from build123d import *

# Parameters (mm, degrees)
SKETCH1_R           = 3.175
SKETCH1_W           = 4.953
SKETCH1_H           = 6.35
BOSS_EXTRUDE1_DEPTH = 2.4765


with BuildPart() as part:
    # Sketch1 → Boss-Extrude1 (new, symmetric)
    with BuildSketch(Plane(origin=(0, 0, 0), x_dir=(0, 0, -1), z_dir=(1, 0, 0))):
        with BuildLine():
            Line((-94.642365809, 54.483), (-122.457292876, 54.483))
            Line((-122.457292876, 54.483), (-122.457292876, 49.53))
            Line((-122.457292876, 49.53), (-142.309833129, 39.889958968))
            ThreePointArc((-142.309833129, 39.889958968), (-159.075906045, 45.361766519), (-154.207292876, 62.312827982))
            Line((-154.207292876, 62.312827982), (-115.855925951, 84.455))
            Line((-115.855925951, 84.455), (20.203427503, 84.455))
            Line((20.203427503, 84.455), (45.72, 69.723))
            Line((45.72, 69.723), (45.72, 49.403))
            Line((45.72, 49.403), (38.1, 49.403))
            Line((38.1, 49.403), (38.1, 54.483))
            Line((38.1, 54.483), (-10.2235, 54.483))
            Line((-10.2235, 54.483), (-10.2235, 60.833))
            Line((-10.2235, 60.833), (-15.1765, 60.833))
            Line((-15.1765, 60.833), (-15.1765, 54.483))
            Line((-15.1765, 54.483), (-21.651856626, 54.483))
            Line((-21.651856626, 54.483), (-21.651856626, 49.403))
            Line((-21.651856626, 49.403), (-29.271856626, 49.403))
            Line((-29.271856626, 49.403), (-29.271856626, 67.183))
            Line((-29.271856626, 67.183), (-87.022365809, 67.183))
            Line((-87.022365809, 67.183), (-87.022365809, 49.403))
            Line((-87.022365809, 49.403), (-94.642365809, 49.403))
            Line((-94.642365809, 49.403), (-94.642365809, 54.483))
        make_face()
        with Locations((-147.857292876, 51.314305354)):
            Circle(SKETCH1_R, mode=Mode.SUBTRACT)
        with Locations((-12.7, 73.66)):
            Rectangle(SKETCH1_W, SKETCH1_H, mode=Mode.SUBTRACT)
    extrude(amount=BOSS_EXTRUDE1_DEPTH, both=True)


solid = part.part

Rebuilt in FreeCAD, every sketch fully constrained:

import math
import FreeCAD as App
import Part
import Sketcher
Q = App.Units.Quantity


def add_polygon(sketch, points):
    """Adds a closed chain of lines whose ends are joined by coincident constraints."""
    first, n = sketch.GeometryCount, len(points)
    for a, b in zip(points, points[1:] + points[:1]):
        sketch.addGeometry(Part.LineSegment(App.Vector(*a, 0), App.Vector(*b, 0)), False)
    for i in range(n):
        sketch.addConstraint(Sketcher.Constraint("Coincident", first + i, 2, first + (i + 1) % n, 1))

doc = App.newDocument("Part")
body = doc.addObject("PartDesign::Body", "Body")

sketch1 = body.newObject("Sketcher::SketchObject", "Sketch")
sketch1.AttachmentSupport = (doc.getObject("YZ_Plane"), [""])
sketch1.MapMode = "FlatFace"
sketch1.addGeometry(Part.LineSegment(App.Vector(54.5, 122.5, 0), App.Vector(54.5, 94.6, 0)), False)
sketch1.addGeometry(Part.LineSegment(App.Vector(54.5, 94.6, 0), App.Vector(49.4, 94.6, 0)), False)
sketch1.addGeometry(Part.LineSegment(App.Vector(49.4, 94.6, 0), App.Vector(49.4, 87, 0)), False)
sketch1.addGeometry(Part.LineSegment(App.Vector(49.4, 87, 0), App.Vector(67.2, 87, 0)), False)
sketch1.addGeometry(Part.LineSegment(App.Vector(67.2, 87, 0), App.Vector(67.2, 29.3, 0)), False)
sketch1.addGeometry(Part.LineSegment(App.Vector(67.2, 29.3, 0), App.Vector(49.4, 29.3, 0)), False)
sketch1.addGeometry(Part.LineSegment(App.Vector(49.4, 29.3, 0), App.Vector(49.4, 21.7, 0)), False)
sketch1.addGeometry(Part.LineSegment(App.Vector(49.4, 21.7, 0), App.Vector(54.5, 21.7, 0)), False)
sketch1.addGeometry(Part.LineSegment(App.Vector(54.5, 21.7, 0), App.Vector(54.5, 15.2, 0)), False)
sketch1.addGeometry(Part.LineSegment(App.Vector(54.5, 15.2, 0), App.Vector(60.8, 15.2, 0)), False)
sketch1.addGeometry(Part.LineSegment(App.Vector(60.8, 15.2, 0), App.Vector(60.8, 10.2, 0)), False)
sketch1.addGeometry(Part.LineSegment(App.Vector(60.8, 10.2, 0), App.Vector(54.5, 10.2, 0)), False)
sketch1.addGeometry(Part.LineSegment(App.Vector(54.5, 10.2, 0), App.Vector(54.5, -38.1, 0)), False)
sketch1.addGeometry(Part.LineSegment(App.Vector(54.5, -38.1, 0), App.Vector(49.4, -38.1, 0)), False)
sketch1.addGeometry(Part.LineSegment(App.Vector(49.4, -38.1, 0), App.Vector(49.4, -45.7, 0)), False)
sketch1.addGeometry(Part.LineSegment(App.Vector(49.4, -45.7, 0), App.Vector(69.7, -45.7, 0)), False)
sketch1.addGeometry(Part.LineSegment(App.Vector(69.7, -45.7, 0), App.Vector(84.5, -20.2, 0)), False)
sketch1.addGeometry(Part.LineSegment(App.Vector(84.5, -20.2, 0), App.Vector(84.5, 115.9, 0)), False)
sketch1.addGeometry(Part.LineSegment(App.Vector(84.5, 115.9, 0), App.Vector(62.3, 154.2, 0)), False)
sketch1.addGeometry(Part.ArcOfCircle(Part.Circle(App.Vector(51.3, 147.9, 0), App.Vector(0, 0, 1), 12.7), math.radians(30), math.radians(206)), False)
sketch1.addGeometry(Part.LineSegment(App.Vector(39.9, 142.3, 0), App.Vector(49.5, 122.5, 0)), False)
sketch1.addGeometry(Part.LineSegment(App.Vector(49.5, 122.5, 0), App.Vector(54.5, 122.5, 0)), False)
sketch1.addGeometry(Part.Circle(App.Vector(51.3, 147.9, 0), App.Vector(0, 0, 1), 3.2), False)
add_polygon(sketch1, [(70.5, 15.2), (76.8, 15.2), (76.8, 10.2), (70.5, 10.2)])
sketch1.addConstraint([
    Sketcher.Constraint("Coincident", 0, 2, 1, 1),
    Sketcher.Constraint("Coincident", 1, 2, 2, 1),
    Sketcher.Constraint("Coincident", 2, 2, 3, 1),
    Sketcher.Constraint("Coincident", 3, 2, 4, 1),
    Sketcher.Constraint("Coincident", 4, 2, 5, 1),
    Sketcher.Constraint("Coincident", 5, 2, 6, 1),
    Sketcher.Constraint("Coincident", 6, 2, 7, 1),
    Sketcher.Constraint("Coincident", 7, 2, 8, 1),
    Sketcher.Constraint("Coincident", 8, 2, 9, 1),
    Sketcher.Constraint("Coincident", 9, 2, 10, 1),
    Sketcher.Constraint("Coincident", 10, 2, 11, 1),
    Sketcher.Constraint("Coincident", 11, 2, 12, 1),
    Sketcher.Constraint("Coincident", 12, 2, 13, 1),
    Sketcher.Constraint("Coincident", 13, 2, 14, 1),
    Sketcher.Constraint("Coincident", 14, 2, 15, 1),
    Sketcher.Constraint("Coincident", 15, 2, 16, 1),
    Sketcher.Constraint("Coincident", 16, 2, 17, 1),
    Sketcher.Constraint("Coincident", 17, 2, 18, 1),
    Sketcher.Constraint("Tangent", 18, 2, 19, 1),
    Sketcher.Constraint("Tangent", 19, 2, 20, 1),
    Sketcher.Constraint("Coincident", 20, 2, 21, 1),
    Sketcher.Constraint("Coincident", 21, 2, 0, 1),
    Sketcher.Constraint("Vertical", 0),
    Sketcher.Constraint("Horizontal", 1),
    Sketcher.Constraint("Vertical", 2),
    Sketcher.Constraint("Horizontal", 3),
    Sketcher.Constraint("Vertical", 4),
    Sketcher.Constraint("Horizontal", 5),
    Sketcher.Constraint("Vertical", 6),
    Sketcher.Constraint("Horizontal", 7),
    Sketcher.Constraint("Vertical", 8),
    Sketcher.Constraint("Horizontal", 9),
    Sketcher.Constraint("Vertical", 10),
    Sketcher.Constraint("Horizontal", 11),
    Sketcher.Constraint("Vertical", 12),
    Sketcher.Constraint("Horizontal", 13),
    Sketcher.Constraint("Vertical", 14),
    Sketcher.Constraint("Horizontal", 15),
    Sketcher.Constraint("Vertical", 17),
    Sketcher.Constraint("Horizontal", 21),
    Sketcher.Constraint("Horizontal", 23),
    Sketcher.Constraint("Vertical", 24),
    Sketcher.Constraint("Horizontal", 25),
    Sketcher.Constraint("Vertical", 26),
    Sketcher.Constraint("Coincident", 22, 3, 19, 3),
    Sketcher.Constraint("Horizontal", 9, 2, 23, 2),
    Sketcher.Constraint("Horizontal", 11, 2, 24, 2),
    Sketcher.Constraint("Vertical", 2, 2, 5, 2),
    Sketcher.Constraint("Vertical", 0, 2, 7, 2),
    Sketcher.Constraint("Vertical", 8, 2, 11, 2),
    Sketcher.Constraint("Vertical", 6, 2, 13, 2),
    Sketcher.Constraint("Equal", 11, 23),
    Sketcher.Constraint("Equal", 2, 6),
    Sketcher.Constraint("Equal", 21, 10),
    Sketcher.Constraint("Equal", 6, 14),
    Sketcher.Constraint("Radius", 19, Q("0.5 in")),
    Sketcher.Constraint("Diameter", 22, Q("0.25 in")),
    Sketcher.Constraint("DistanceX", 1, 2, 1, 1, Q("0.2 in")),
    Sketcher.Constraint("DistanceX", 3, 1, 3, 2, Q("0.7 in")),
    Sketcher.Constraint("DistanceX", 15, 1, 15, 2, Q("0.8 in")),
    Sketcher.Constraint("DistanceY", 2, 2, 2, 1, Q("0.3 in")),
    Sketcher.Constraint("Angle", 16, Q("60 deg")),
    Sketcher.Constraint("Angle", 18, Q("120 deg")),
    Sketcher.Constraint("DistanceY", 20, 2, 22, 3, Q("1 in")),
    Sketcher.Constraint("DistanceX", 9, 1, 9, 2, Q("0.25 in")),
    Sketcher.Constraint("DistanceY", 12, 2, -1, 1, Q("1.5 in")),
    Sketcher.Constraint("Distance", 16, Q("1.16 in")),
    Sketcher.Constraint("DistanceX", 21, 1, 21, 2, Q("0.195 in")),
    Sketcher.Constraint("DistanceX", -1, 1, 20, 2, Q("1.95 in")),
    Sketcher.Constraint("DistanceX", 9, 2, 23, 2, Q("0.63 in")),
    Sketcher.Constraint("DistanceY", 12, 2, 12, 1, Q("1.9025 in")),
    Sketcher.Constraint("DistanceY", 4, 2, 4, 1, Q("57.750509 mm")),
    Sketcher.Constraint("DistanceY", 0, 2, 0, 1, Q("27.814927 mm")),
    Sketcher.Constraint("DistanceY", 8, 2, 8, 1, Q("6.475357 mm")),
    Sketcher.Constraint("DistanceY", 17, 1, 17, 2, Q("136.059353 mm")),
])
pad1 = body.newObject("PartDesign::Pad", "Pad")
pad1.Profile = sketch1
pad1.Length = Q("0.195 in")
pad1.Midplane = True

doc.recompute()
